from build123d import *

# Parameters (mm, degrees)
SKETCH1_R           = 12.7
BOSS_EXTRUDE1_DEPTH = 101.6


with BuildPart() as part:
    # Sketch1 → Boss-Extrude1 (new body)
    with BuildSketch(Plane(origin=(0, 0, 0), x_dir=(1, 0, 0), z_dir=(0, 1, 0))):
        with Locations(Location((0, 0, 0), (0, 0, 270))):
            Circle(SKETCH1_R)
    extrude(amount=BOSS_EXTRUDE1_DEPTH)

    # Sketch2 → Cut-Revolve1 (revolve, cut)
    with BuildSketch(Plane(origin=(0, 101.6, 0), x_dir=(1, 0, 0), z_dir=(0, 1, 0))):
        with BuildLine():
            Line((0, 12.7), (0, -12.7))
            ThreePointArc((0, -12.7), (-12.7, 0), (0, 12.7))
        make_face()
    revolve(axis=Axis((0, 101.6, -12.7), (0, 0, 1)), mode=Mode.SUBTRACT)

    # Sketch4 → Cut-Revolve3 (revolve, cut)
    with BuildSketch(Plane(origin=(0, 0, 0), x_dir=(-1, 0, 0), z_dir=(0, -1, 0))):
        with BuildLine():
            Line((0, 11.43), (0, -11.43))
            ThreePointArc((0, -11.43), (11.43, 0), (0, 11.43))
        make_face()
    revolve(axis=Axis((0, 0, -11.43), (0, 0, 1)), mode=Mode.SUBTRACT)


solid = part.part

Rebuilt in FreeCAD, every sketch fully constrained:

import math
import FreeCAD as App
import Part
import Sketcher

V = App.Vector
Q = App.Units.Quantity

doc = App.newDocument("Part")
body = doc.addObject("PartDesign::Body", "Body")

# Sketch on XZ plane
sketch1 = body.newObject("Sketcher::SketchObject", "Sketch")
sketch1.AttachmentSupport = (doc.getObject("XZ_Plane"), [""])
sketch1.MapMode = "FlatFace"
sketch1.addGeometry(Part.Circle(V(0, 0, 0), V(0, 0, 1), 12.7), False)
sketch1.addConstraint(Sketcher.Constraint("Coincident", 0, 3, -1, 1))
sketch1.addConstraint(Sketcher.Constraint("Diameter", 0, Q("1 in")))
pad1 = body.newObject("PartDesign::Pad", "Pad")
pad1.Profile = sketch1
pad1.Length = Q("4 in")
pad1.Reversed = True

# Sketch on XZ plane
sketch2 = body.newObject("Sketcher::SketchObject", "Sketch001")
sketch2.AttachmentSupport = (doc.getObject("XZ_Plane"), [""])
sketch2.MapMode = "FlatFace"
sketch2.AttachmentOffset = App.Placement(V(0, 0, -4 * 25.4), App.Rotation())
sketch2.addGeometry(Part.LineSegment(V(0, 12.7, 0), V(0, -12.7, 0)), False)
sketch2.addGeometry(Part.ArcOfCircle(Part.Circle(V(0, 0, 0), V(0, 0, 1), 12.7), math.radians(90), math.radians(270)), False)
sketch2.addConstraint(Sketcher.Constraint("Coincident", 0, 1, 1, 1))
sketch2.addConstraint(Sketcher.Constraint("Coincident", 1, 2, 0, 2))
sketch2.addConstraint(Sketcher.Constraint("Vertical", 0))
sketch2.addConstraint(Sketcher.Constraint("Coincident", 1, 3, -1, 1))
sketch2.addConstraint(Sketcher.Constraint("PointOnObject", 0, 1, -2))
sketch2.addConstraint(Sketcher.Constraint("Radius", 1, Q("0.5 in")))
groove = body.newObject("PartDesign::Groove", "Groove")
groove.Profile = sketch2
groove.ReferenceAxis = (sketch2, ["V_Axis"])
groove.Angle = 360

# Sketch on XZ plane
sketch3 = body.newObject("Sketcher::SketchObject", "Sketch002")
sketch3.AttachmentSupport = (doc.getObject("XZ_Plane"), [""])
sketch3.MapMode = "FlatFace"
sketch3.addGeometry(Part.LineSegment(V(0, -11.43, 0), V(0, 11.43, 0)), False)
sketch3.addGeometry(Part.ArcOfCircle(Part.Circle(V(0, 0, 0), V(0, 0, 1), 11.43), math.radians(90), math.radians(270)), False)
sketch3.addConstraint(Sketcher.Constraint("Coincident", 0, 1, 1, 2))
sketch3.addConstraint(Sketcher.Constraint("Coincident", 1, 1, 0, 2))
sketch3.addConstraint(Sketcher.Constraint("Vertical", 0))
sketch3.addConstraint(Sketcher.Constraint("Coincident", 1, 3, -1, 1))
sketch3.addConstraint(Sketcher.Constraint("PointOnObject", 0, 1, -2))
sketch3.addConstraint(Sketcher.Constraint("Radius", 1, Q("0.45 in")))
groove2 = body.newObject("PartDesign::Groove", "Groove001")
groove2.Profile = sketch3
groove2.ReferenceAxis = (sketch3, ["V_Axis"])
groove2.Angle = 360

doc.recompute()
